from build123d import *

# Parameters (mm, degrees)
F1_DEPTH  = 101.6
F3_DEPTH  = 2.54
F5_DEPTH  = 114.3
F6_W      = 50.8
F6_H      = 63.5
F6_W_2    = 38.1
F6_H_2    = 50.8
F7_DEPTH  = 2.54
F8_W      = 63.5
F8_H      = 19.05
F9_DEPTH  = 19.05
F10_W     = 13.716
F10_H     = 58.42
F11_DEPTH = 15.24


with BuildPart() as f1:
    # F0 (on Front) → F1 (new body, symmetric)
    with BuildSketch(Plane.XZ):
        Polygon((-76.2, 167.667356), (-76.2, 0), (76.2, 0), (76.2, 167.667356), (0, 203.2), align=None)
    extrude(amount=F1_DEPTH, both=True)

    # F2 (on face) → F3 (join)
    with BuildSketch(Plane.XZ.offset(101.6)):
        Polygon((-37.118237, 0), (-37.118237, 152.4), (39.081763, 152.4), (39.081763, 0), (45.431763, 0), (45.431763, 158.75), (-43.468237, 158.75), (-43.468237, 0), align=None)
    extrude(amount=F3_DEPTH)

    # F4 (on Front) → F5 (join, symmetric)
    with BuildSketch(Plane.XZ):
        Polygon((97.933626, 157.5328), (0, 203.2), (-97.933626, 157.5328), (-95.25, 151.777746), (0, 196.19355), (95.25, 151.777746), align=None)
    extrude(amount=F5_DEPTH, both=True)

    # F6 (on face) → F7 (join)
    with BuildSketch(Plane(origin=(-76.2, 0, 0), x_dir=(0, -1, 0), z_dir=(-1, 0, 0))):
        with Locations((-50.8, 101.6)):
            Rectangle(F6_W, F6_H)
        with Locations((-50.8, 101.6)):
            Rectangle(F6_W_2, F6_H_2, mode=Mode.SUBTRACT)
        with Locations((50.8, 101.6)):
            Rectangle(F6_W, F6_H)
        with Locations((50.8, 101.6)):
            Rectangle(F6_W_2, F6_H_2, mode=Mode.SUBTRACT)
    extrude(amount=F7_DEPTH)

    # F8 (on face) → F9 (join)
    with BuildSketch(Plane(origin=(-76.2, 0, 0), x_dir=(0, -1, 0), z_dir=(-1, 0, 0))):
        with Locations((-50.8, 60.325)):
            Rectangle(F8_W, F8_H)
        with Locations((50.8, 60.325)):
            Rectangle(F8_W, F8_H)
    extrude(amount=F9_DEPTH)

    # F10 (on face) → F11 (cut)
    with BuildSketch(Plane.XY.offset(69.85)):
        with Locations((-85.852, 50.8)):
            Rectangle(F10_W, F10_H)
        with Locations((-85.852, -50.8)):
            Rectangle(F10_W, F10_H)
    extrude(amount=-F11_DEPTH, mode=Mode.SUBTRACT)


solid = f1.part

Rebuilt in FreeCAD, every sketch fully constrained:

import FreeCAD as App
import Part
import Sketcher
from FreeCAD import Vector
Q = App.Units.Quantity

doc = App.newDocument("Part")
body = doc.addObject("PartDesign::Body", "Body")

sketch1 = doc.addObject("Sketcher::SketchObject", "Sketch")
body.addObject(sketch1)
sketch1.AttachmentSupport = (doc.XZ_Plane, [""])
sketch1.MapMode = "FlatFace"
sketch1.addGeometry([
    Part.LineSegment(Vector(-76, 168, 0), Vector(-76, 0, 0)),
    Part.LineSegment(Vector(-76, 0, 0), Vector(76, 0, 0)),
    Part.LineSegment(Vector(76, 0, 0), Vector(76, 168, 0)),
    Part.LineSegment(Vector(76, 168, 0), Vector(0, 203, 0)),
    Part.LineSegment(Vector(0, 203, 0), Vector(-76, 168, 0)),
], False)
sketch1.addConstraint([
    Sketcher.Constraint("Coincident", 0, 2, 1, 1),
    Sketcher.Constraint("Coincident", 1, 2, 2, 1),
    Sketcher.Constraint("Coincident", 2, 2, 3, 1),
    Sketcher.Constraint("Coincident", 3, 2, 4, 1),
    Sketcher.Constraint("Coincident", 4, 2, 0, 1),
    Sketcher.Constraint("Vertical", 0),
    Sketcher.Constraint("Horizontal", 1),
    Sketcher.Constraint("Vertical", 2),
    Sketcher.Constraint("Symmetric", 0, 2, 1, 2, -1, 1),
    Sketcher.Constraint("PointOnObject", 3, 2, -2),
    Sketcher.Constraint("Horizontal", 2, 2, 4, 2),
    Sketcher.Constraint("DistanceX", 1, 1, 1, 2, Q("6 in")),
    Sketcher.Constraint("DistanceY", -1, 1, 3, 2, Q("8 in")),
    Sketcher.Constraint("Angle", 3, Q("155 deg")),
])
pad1 = doc.addObject("PartDesign::Pad", "Pad")
body.addObject(pad1)
pad1.Profile = sketch1
pad1.Length = Q("8 in")
pad1.Midplane = True

sketch2 = doc.addObject("Sketcher::SketchObject", "Sketch001")
body.addObject(sketch2)
sketch2.AttachmentSupport = (doc.XZ_Plane, [""])
sketch2.MapMode = "FlatFace"
sketch2.AttachmentOffset = App.Placement(Vector(0, 0, 4 * 25.4), App.Rotation())
sketch2.addGeometry([
    Part.LineSegment(Vector(-37, 0, 0), Vector(-37, 152, 0)),
    Part.LineSegment(Vector(-37, 152, 0), Vector(39, 152, 0)),
    Part.LineSegment(Vector(39, 152, 0), Vector(39, 0, 0)),
    Part.LineSegment(Vector(39, 0, 0), Vector(45, 0, 0)),
    Part.LineSegment(Vector(45, 0, 0), Vector(45, 159, 0)),
    Part.LineSegment(Vector(45, 159, 0), Vector(-43, 159, 0)),
    Part.LineSegment(Vector(-43, 159, 0), Vector(-43, 0, 0)),
    Part.LineSegment(Vector(-43, 0, 0), Vector(-37, 0, 0)),
], False)
sketch2.addConstraint([
    Sketcher.Constraint("Coincident", 0, 2, 1, 1),
    Sketcher.Constraint("Coincident", 1, 2, 2, 1),
    Sketcher.Constraint("Coincident", 2, 2, 3, 1),
    Sketcher.Constraint("Coincident", 3, 2, 4, 1),
    Sketcher.Constraint("Coincident", 4, 2, 5, 1),
    Sketcher.Constraint("Coincident", 5, 2, 6, 1),
    Sketcher.Constraint("Coincident", 6, 2, 7, 1),
    Sketcher.Constraint("Coincident", 7, 2, 0, 1),
    Sketcher.Constraint("Vertical", 0),
    Sketcher.Constraint("Horizontal", 1),
    Sketcher.Constraint("Vertical", 2),
    Sketcher.Constraint("Horizontal", 3),
    Sketcher.Constraint("Vertical", 4),
    Sketcher.Constraint("Horizontal", 5),
    Sketcher.Constraint("Vertical", 6),
    Sketcher.Constraint("Horizontal", 7),
    Sketcher.Constraint("PointOnObject", 2, 2, -1),
    Sketcher.Constraint("PointOnObject", 6, 2, -1),
    Sketcher.Constraint("Equal", 3, 7),
    Sketcher.Constraint("DistanceX", 1, 1, 1, 2, Q("3 in")),
    Sketcher.Constraint("DistanceY", 0, 1, 0, 2, Q("6 in")),
    Sketcher.Constraint("DistanceX", 5, 2, 5, 1, Q("3.5 in")),
    Sketcher.Constraint("DistanceY", 4, 1, 4, 2, Q("6.25 in")),
    Sketcher.Constraint("DistanceX", 0, 2, -1, 1, Q("37.118237 mm")),
])
pad2 = doc.addObject("PartDesign::Pad", "Pad001")
body.addObject(pad2)
pad2.Profile = sketch2
pad2.Length = Q("0.1 in")

sketch3 = doc.addObject("Sketcher::SketchObject", "Sketch002")
body.addObject(sketch3)
sketch3.AttachmentSupport = (doc.XZ_Plane, [""])
sketch3.MapMode = "FlatFace"
sketch3.addGeometry([
    Part.LineSegment(Vector(98, 158, 0), Vector(0, 203, 0)),
    Part.LineSegment(Vector(0, 203, 0), Vector(-98, 158, 0)),
    Part.LineSegment(Vector(-98, 158, 0), Vector(-95, 152, 0)),
    Part.LineSegment(Vector(-95, 152, 0), Vector(0, 196, 0)),
    Part.LineSegment(Vector(0, 196, 0), Vector(95, 152, 0)),
    Part.LineSegment(Vector(95, 152, 0), Vector(98, 158, 0)),
], False)
sketch3.addConstraint([
    Sketcher.Constraint("Coincident", 0, 2, 1, 1),
    Sketcher.Constraint("Coincident", 1, 2, 2, 1),
    Sketcher.Constraint("Coincident", 2, 2, 3, 1),
    Sketcher.Constraint("Coincident", 3, 2, 4, 1),
    Sketcher.Constraint("Coincident", 4, 2, 5, 1),
    Sketcher.Constraint("Coincident", 5, 2, 0, 1),
    Sketcher.Constraint("Symmetric", 2, 2, 4, 2, -2),
    Sketcher.Constraint("Symmetric", 1, 2, 5, 2, -2),
    Sketcher.Constraint("PointOnObject", 0, 2, -2),
    Sketcher.Constraint("PointOnObject", 3, 2, -2),
    Sketcher.Constraint("Perpendicular", 1, 2),
    Sketcher.Constraint("Perpendicular", 2, 3),
    Sketcher.Constraint("DistanceY", -1, 1, 0, 2, Q("8 in")),
    Sketcher.Constraint("Angle", 0, Q("155 deg")),
    Sketcher.Constraint("DistanceX", 2, 2, 4, 2, Q("7.5 in")),
    Sketcher.Constraint("Distance", 2, Q("0.25 in")),
])
pad3 = doc.addObject("PartDesign::Pad", "Pad002")
body.addObject(pad3)
pad3.Profile = sketch3
pad3.Length = Q("9 in")
pad3.Midplane = True

sketch4 = doc.addObject("Sketcher::SketchObject", "Sketch003")
body.addObject(sketch4)
sketch4.AttachmentSupport = (doc.YZ_Plane, [""])
sketch4.MapMode = "FlatFace"
sketch4.AttachmentOffset = App.Placement(Vector(0, 0, -3 * 25.4), App.Rotation())
sketch4.addGeometry([
    Part.LineSegment(Vector(76, 133, 0), Vector(76, 70, 0)),
    Part.LineSegment(Vector(76, 70, 0), Vector(25, 70, 0)),
    Part.LineSegment(Vector(25, 70, 0), Vector(25, 133, 0)),
    Part.LineSegment(Vector(25, 133, 0), Vector(76, 133, 0)),
    Part.LineSegment(Vector(32, 76, 0), Vector(70, 76, 0)),
    Part.LineSegment(Vector(70, 76, 0), Vector(70, 127, 0)),
    Part.LineSegment(Vector(70, 127, 0), Vector(32, 127, 0)),
    Part.LineSegment(Vector(32, 127, 0), Vector(32, 76, 0)),
    Part.LineSegment(Vector(-25, 133, 0), Vector(-25, 70, 0)),
    Part.LineSegment(Vector(-25, 70, 0), Vector(-76, 70, 0)),
    Part.LineSegment(Vector(-76, 70, 0), Vector(-76, 133, 0)),
    Part.LineSegment(Vector(-76, 133, 0), Vector(-25, 133, 0)),
    Part.LineSegment(Vector(-70, 76, 0), Vector(-32, 76, 0)),
    Part.LineSegment(Vector(-32, 76, 0), Vector(-32, 127, 0)),
    Part.LineSegment(Vector(-32, 127, 0), Vector(-70, 127, 0)),
    Part.LineSegment(Vector(-70, 127, 0), Vector(-70, 76, 0)),
], False)
sketch4.addConstraint([
    Sketcher.Constraint("Coincident", 0, 2, 1, 1),
    Sketcher.Constraint("Coincident", 1, 2, 2, 1),
    Sketcher.Constraint("Coincident", 2, 2, 3, 1),
    Sketcher.Constraint("Coincident", 3, 2, 0, 1),
    Sketcher.Constraint("Coincident", 4, 2, 5, 1),
    Sketcher.Constraint("Coincident", 5, 2, 6, 1),
    Sketcher.Constraint("Coincident", 6, 2, 7, 1),
    Sketcher.Constraint("Coincident", 7, 2, 4, 1),
    Sketcher.Constraint("Coincident", 8, 2, 9, 1),
    Sketcher.Constraint("Coincident", 9, 2, 10, 1),
    Sketcher.Constraint("Coincident", 10, 2, 11, 1),
    Sketcher.Constraint("Coincident", 11, 2, 8, 1),
    Sketcher.Constraint("Coincident", 12, 2, 13, 1),
    Sketcher.Constraint("Coincident", 13, 2, 14, 1),
    Sketcher.Constraint("Coincident", 14, 2, 15, 1),
    Sketcher.Constraint("Coincident", 15, 2, 12, 1),
    Sketcher.Constraint("Vertical", 0),
    Sketcher.Constraint("Horizontal", 1),
    Sketcher.Constraint("Vertical", 2),
    Sketcher.Constraint("Horizontal", 3),
    Sketcher.Constraint("Horizontal", 4),
    Sketcher.Constraint("Vertical", 5),
    Sketcher.Constraint("Horizontal", 6),
    Sketcher.Constraint("Vertical", 7),
    Sketcher.Constraint("Vertical", 8),
    Sketcher.Constraint("Horizontal", 9),
    Sketcher.Constraint("Vertical", 10),
    Sketcher.Constraint("Horizontal", 11),
    Sketcher.Constraint("Horizontal", 12),
    Sketcher.Constraint("Vertical", 13),
    Sketcher.Constraint("Horizontal", 14),
    Sketcher.Constraint("Vertical", 15),
    Sketcher.Constraint("Symmetric", 1, 2, 8, 2, -2),
    Sketcher.Constraint("Symmetric", 3, 2, 10, 2, -2),
    Sketcher.Constraint("Symmetric", 7, 2, 12, 2, -2),
    Sketcher.Constraint("Symmetric", 5, 2, 14, 2, -2),
    Sketcher.Constraint("Equal", 11, 5),
    Sketcher.Constraint("DistanceX", 1, 2, 1, 1, Q("2 in")),
    Sketcher.Constraint("DistanceX", 4, 1, 4, 2, Q("1.5 in")),
    Sketcher.Constraint("DistanceY", 0, 2, 0, 1, Q("2.5 in")),
    Sketcher.Constraint("DistanceX", -1, 1, 0, 2, Q("3 in")),
    Sketcher.Constraint("DistanceY", -1, 1, 4, 2, Q("3 in")),
    Sketcher.Constraint("DistanceX", 12, 2, 7, 2, Q("2.5 in")),
    Sketcher.Constraint("DistanceY", -1, 1, 0, 2, Q("2.75 in")),
])
pad4 = doc.addObject("PartDesign::Pad", "Pad003")
body.addObject(pad4)
pad4.Profile = sketch4
pad4.Length = Q("0.1 in")
pad4.Reversed = True

sketch5 = doc.addObject("Sketcher::SketchObject", "Sketch004")
body.addObject(sketch5)
sketch5.AttachmentSupport = (doc.YZ_Plane, [""])
sketch5.MapMode = "FlatFace"
sketch5.AttachmentOffset = App.Placement(Vector(0, 0, -3 * 25.4), App.Rotation())
sketch5.addGeometry([
    Part.LineSegment(Vector(83, 70, 0), Vector(83, 51, 0)),
    Part.LineSegment(Vector(83, 51, 0), Vector(19, 51, 0)),
    Part.LineSegment(Vector(19, 51, 0), Vector(19, 70, 0)),
    Part.LineSegment(Vector(19, 70, 0), Vector(83, 70, 0)),
    Part.LineSegment(Vector(-19, 70, 0), Vector(-19, 51, 0)),
    Part.LineSegment(Vector(-19, 51, 0), Vector(-83, 51, 0)),
    Part.LineSegment(Vector(-83, 51, 0), Vector(-83, 70, 0)),
    Part.LineSegment(Vector(-83, 70, 0), Vector(-19, 70, 0)),
], False)
sketch5.addConstraint([
    Sketcher.Constraint("Coincident", 0, 2, 1, 1),
    Sketcher.Constraint("Coincident", 1, 2, 2, 1),
    Sketcher.Constraint("Coincident", 2, 2, 3, 1),
    Sketcher.Constraint("Coincident", 3, 2, 0, 1),
    Sketcher.Constraint("Coincident", 4, 2, 5, 1),
    Sketcher.Constraint("Coincident", 5, 2, 6, 1),
    Sketcher.Constraint("Coincident", 6, 2, 7, 1),
    Sketcher.Constraint("Coincident", 7, 2, 4, 1),
    Sketcher.Constraint("Vertical", 0),
    Sketcher.Constraint("Horizontal", 1),
    Sketcher.Constraint("Vertical", 2),
    Sketcher.Constraint("Horizontal", 3),
    Sketcher.Constraint("Vertical", 4),
    Sketcher.Constraint("Horizontal", 5),
    Sketcher.Constraint("Vertical", 6),
    Sketcher.Constraint("Horizontal", 7),
    Sketcher.Constraint("Symmetric", 1, 2, 4, 2, -2),
    Sketcher.Constraint("Symmetric", 3, 2, 6, 2, -2),
    Sketcher.Constraint("DistanceX", 1, 2, 1, 1, Q("2.5 in")),
    Sketcher.Constraint("DistanceY", -1, 1, 0, 2, Q("2 in")),
    Sketcher.Constraint("DistanceX", 4, 2, 0, 2, Q("4 in")),
    Sketcher.Constraint("DistanceY", 0, 2, 0, 1, Q("0.75 in")),
])
pad5 = doc.addObject("PartDesign::Pad", "Pad004")
body.addObject(pad5)
pad5.Profile = sketch5
pad5.Length = Q("0.75 in")
pad5.Reversed = True

sketch6 = doc.addObject("Sketcher::SketchObject", "Sketch005")
body.addObject(sketch6)
sketch6.AttachmentSupport = (doc.XY_Plane, [""])
sketch6.MapMode = "FlatFace"
sketch6.AttachmentOffset = App.Placement(Vector(0, 0, 2.75 * 25.4), App.Rotation())
sketch6.addGeometry([
    Part.LineSegment(Vector(-93, 80, 0), Vector(-93, 22, 0)),
    Part.LineSegment(Vector(-93, 22, 0), Vector(-79, 22, 0)),
    Part.LineSegment(Vector(-79, 22, 0), Vector(-79, 80, 0)),
    Part.LineSegment(Vector(-79, 80, 0), Vector(-93, 80, 0)),
    Part.LineSegment(Vector(-93, -22, 0), Vector(-93, -80, 0)),
    Part.LineSegment(Vector(-93, -80, 0), Vector(-79, -80, 0)),
    Part.LineSegment(Vector(-79, -80, 0), Vector(-79, -22, 0)),
    Part.LineSegment(Vector(-79, -22, 0), Vector(-93, -22, 0)),
], False)
sketch6.addConstraint([
    Sketcher.Constraint("Coincident", 0, 2, 1, 1),
    Sketcher.Constraint("Coincident", 1, 2, 2, 1),
    Sketcher.Constraint("Coincident", 2, 2, 3, 1),
    Sketcher.Constraint("Coincident", 3, 2, 0, 1),
    Sketcher.Constraint("Coincident", 4, 2, 5, 1),
    Sketcher.Constraint("Coincident", 5, 2, 6, 1),
    Sketcher.Constraint("Coincident", 6, 2, 7, 1),
    Sketcher.Constraint("Coincident", 7, 2, 4, 1),
    Sketcher.Constraint("Vertical", 0),
    Sketcher.Constraint("Horizontal", 1),
    Sketcher.Constraint("Vertical", 2),
    Sketcher.Constraint("Horizontal", 3),
    Sketcher.Constraint("Vertical", 4),
    Sketcher.Constraint("Horizontal", 5),
    Sketcher.Constraint("Vertical", 6),
    Sketcher.Constraint("Horizontal", 7),
    Sketcher.Constraint("Symmetric", 3, 2, 4, 2, -1),
    Sketcher.Constraint("Symmetric", 1, 2, 6, 2, -1),
    Sketcher.Constraint("DistanceY", 0, 2, 0, 1, Q("2.3 in")),
    Sketcher.Constraint("DistanceY", 4, 2, 0, 2, Q("4 in")),
    Sketcher.Constraint("DistanceX", 1, 1, 1, 2, Q("0.54 in")),
    Sketcher.Constraint("DistanceX", 0, 2, -1, 1, Q("3.65 in")),
])
pocket1 = doc.addObject("PartDesign::Pocket", "Pocket")
body.addObject(pocket1)
pocket1.Profile = sketch6
pocket1.Length = Q("0.6 in")

doc.recompute()
